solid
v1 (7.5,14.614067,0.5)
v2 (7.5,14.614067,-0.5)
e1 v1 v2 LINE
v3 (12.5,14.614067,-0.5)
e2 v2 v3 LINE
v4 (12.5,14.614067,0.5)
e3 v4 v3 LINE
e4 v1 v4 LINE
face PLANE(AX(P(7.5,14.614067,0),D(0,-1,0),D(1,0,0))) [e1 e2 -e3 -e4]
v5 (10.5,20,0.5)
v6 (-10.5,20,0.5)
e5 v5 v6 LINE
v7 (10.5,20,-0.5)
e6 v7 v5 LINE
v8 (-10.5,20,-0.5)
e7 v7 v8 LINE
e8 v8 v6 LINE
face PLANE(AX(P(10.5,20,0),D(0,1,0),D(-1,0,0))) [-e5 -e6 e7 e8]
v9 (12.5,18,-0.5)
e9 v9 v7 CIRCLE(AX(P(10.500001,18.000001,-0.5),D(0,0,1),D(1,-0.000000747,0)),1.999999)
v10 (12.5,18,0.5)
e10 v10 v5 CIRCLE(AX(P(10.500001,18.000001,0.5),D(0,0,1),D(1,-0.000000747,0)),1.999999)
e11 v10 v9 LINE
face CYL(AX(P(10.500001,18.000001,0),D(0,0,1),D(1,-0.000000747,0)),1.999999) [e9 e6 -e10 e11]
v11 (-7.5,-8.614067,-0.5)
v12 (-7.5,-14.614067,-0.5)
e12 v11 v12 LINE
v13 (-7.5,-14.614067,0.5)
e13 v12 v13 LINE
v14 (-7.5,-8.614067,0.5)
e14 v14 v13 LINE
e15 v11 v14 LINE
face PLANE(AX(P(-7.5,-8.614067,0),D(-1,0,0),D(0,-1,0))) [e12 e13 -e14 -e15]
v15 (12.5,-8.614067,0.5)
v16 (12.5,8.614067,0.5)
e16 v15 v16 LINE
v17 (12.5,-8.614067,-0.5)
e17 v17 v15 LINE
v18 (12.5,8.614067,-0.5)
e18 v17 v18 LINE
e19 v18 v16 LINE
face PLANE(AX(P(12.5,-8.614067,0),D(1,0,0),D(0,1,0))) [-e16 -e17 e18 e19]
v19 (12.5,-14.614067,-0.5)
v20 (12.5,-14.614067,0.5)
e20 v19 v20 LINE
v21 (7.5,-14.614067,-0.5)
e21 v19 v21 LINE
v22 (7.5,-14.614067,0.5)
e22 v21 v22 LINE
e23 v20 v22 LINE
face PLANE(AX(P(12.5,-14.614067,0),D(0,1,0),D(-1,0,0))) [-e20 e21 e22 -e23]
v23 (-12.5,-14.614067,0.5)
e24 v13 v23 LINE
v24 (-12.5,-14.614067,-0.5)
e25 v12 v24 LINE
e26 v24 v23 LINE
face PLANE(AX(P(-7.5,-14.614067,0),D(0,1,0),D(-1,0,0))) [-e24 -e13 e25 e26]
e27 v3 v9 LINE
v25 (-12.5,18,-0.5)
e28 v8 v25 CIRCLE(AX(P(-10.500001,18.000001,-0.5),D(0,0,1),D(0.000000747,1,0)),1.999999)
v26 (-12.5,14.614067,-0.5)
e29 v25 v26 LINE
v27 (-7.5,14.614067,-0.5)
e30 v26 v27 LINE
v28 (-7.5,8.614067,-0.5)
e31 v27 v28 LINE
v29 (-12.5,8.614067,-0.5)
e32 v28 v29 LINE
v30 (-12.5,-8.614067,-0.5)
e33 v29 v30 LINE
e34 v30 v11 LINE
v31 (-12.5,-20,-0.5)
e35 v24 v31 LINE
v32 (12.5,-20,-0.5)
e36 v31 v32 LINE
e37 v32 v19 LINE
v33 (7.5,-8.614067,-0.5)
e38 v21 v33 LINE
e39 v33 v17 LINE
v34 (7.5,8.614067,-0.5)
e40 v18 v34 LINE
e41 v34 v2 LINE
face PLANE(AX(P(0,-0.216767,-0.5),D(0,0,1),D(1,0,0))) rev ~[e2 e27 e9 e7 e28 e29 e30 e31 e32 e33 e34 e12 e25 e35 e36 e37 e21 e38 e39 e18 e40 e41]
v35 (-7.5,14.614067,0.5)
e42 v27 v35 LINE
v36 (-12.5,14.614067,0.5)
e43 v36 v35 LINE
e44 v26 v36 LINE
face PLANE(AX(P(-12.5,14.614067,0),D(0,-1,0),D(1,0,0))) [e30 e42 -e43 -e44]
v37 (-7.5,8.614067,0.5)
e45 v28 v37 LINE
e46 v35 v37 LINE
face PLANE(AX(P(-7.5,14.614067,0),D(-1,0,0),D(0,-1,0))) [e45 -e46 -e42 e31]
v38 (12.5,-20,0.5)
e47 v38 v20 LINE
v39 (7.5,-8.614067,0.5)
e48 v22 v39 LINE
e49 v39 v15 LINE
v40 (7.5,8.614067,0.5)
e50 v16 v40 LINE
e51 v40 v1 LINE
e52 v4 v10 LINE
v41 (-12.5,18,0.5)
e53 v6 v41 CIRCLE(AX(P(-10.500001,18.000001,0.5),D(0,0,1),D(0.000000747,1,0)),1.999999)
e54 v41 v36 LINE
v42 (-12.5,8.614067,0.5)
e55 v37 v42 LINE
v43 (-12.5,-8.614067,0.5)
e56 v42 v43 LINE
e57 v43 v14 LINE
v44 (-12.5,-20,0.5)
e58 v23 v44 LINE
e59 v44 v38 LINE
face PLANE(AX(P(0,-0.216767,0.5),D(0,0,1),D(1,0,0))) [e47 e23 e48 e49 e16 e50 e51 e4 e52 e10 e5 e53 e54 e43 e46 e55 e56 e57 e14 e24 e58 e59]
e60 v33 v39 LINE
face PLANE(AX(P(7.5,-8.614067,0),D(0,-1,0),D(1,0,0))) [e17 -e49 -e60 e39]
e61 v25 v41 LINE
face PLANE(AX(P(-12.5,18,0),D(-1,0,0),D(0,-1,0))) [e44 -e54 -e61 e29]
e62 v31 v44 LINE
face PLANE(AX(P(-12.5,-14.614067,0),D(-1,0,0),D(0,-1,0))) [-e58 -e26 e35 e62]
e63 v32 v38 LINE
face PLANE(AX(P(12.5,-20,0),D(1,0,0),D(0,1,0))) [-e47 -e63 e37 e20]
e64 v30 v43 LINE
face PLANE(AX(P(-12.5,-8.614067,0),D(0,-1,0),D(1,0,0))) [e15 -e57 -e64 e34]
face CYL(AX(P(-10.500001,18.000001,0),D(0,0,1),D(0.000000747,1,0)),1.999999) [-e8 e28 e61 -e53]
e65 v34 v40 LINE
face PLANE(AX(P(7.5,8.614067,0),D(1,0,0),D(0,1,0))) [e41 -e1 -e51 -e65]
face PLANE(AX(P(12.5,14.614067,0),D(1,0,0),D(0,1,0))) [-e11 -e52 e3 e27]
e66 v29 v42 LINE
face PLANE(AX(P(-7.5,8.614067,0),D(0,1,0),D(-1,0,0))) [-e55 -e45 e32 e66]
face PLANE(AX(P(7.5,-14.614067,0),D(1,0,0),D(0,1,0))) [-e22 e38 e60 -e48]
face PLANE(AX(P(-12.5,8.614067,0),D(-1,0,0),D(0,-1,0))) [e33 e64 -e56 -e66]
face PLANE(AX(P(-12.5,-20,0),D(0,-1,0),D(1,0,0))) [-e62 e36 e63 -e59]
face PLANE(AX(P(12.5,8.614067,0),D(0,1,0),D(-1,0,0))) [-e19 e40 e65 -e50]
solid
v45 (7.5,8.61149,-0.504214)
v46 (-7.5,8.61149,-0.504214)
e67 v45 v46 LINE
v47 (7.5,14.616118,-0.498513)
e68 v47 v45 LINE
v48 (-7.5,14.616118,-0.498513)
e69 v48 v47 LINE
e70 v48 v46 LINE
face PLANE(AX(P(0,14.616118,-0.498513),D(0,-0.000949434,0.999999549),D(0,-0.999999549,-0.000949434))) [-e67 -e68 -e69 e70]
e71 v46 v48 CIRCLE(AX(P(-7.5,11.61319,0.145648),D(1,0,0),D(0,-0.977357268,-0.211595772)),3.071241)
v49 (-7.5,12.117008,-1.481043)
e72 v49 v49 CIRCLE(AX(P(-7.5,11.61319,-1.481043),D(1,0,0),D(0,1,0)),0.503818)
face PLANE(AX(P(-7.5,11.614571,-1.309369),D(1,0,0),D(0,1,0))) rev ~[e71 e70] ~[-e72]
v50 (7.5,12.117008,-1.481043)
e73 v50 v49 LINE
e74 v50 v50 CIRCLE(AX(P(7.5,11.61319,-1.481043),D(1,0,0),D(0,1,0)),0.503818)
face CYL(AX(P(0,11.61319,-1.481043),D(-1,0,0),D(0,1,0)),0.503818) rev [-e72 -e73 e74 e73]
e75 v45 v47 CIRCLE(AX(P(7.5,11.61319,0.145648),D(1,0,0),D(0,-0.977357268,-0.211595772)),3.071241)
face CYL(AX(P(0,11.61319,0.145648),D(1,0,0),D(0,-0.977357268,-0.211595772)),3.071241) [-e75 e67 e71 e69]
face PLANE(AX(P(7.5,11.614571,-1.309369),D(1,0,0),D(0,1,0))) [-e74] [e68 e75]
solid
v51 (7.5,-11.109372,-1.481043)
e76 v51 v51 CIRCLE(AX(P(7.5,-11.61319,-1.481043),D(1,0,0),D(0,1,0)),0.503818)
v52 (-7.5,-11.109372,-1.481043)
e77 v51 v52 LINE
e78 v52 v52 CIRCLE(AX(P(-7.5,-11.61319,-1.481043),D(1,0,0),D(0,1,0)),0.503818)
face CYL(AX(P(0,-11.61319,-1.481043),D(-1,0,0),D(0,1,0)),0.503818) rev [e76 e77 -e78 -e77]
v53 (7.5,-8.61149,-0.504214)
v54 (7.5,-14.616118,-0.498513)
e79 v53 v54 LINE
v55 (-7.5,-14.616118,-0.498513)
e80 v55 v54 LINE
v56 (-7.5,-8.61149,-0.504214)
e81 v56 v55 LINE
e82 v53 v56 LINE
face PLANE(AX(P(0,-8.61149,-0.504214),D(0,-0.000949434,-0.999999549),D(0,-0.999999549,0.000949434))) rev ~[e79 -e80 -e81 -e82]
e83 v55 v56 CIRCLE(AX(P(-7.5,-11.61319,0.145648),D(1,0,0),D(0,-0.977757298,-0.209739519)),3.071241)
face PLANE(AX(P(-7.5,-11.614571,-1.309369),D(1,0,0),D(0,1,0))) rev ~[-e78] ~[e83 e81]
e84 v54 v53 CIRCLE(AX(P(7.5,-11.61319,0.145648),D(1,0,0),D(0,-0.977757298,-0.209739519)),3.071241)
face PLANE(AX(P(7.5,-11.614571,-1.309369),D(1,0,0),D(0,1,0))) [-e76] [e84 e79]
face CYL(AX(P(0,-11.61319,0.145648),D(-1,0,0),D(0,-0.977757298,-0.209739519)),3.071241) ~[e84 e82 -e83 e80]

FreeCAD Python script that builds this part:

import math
import FreeCAD as App
import Part
import Sketcher

doc = App.newDocument("Part")
body = doc.addObject("PartDesign::Body", "Body")

# Sketch on XY plane
sketch1 = doc.addObject("Sketcher::SketchObject", "Sketch")
body.addObject(sketch1)
sketch1.AttachmentSupport = (doc.XY_Plane, [""])
sketch1.MapMode = "FlatFace"
sketch1.addGeometry(Part.ArcOfCircle(Part.Circle(App.Vector(10.500001, 18.000001, 0), App.Vector(0, 0, 1), 1.999999), math.radians(-0.000043), math.radians(90.000043)), False)
sketch1.addGeometry(Part.LineSegment(App.Vector(10.5, 20, 0), App.Vector(-10.5, 20, 0)), False)
sketch1.addGeometry(Part.ArcOfCircle(Part.Circle(App.Vector(-10.500001, 18.000001, 0), App.Vector(0, 0, 1), 1.999999), math.radians(89.999957), math.radians(180.000043)), False)
sketch1.addGeometry(Part.LineSegment(App.Vector(-12.5, 18, 0), App.Vector(-12.5, 14.614067, 0)), False)
sketch1.addGeometry(Part.LineSegment(App.Vector(-12.5, 14.614067, 0), App.Vector(-7.5, 14.614067, 0)), False)
sketch1.addGeometry(Part.LineSegment(App.Vector(-7.5, 14.614067, 0), App.Vector(-7.5, 8.614067, 0)), False)
sketch1.addGeometry(Part.LineSegment(App.Vector(-7.5, 8.614067, 0), App.Vector(-12.5, 8.614067, 0)), False)
sketch1.addGeometry(Part.LineSegment(App.Vector(-12.5, 8.614067, 0), App.Vector(-12.5, -8.614067, 0)), False)
sketch1.addGeometry(Part.LineSegment(App.Vector(-12.5, -8.614067, 0), App.Vector(-7.5, -8.614067, 0)), False)
sketch1.addGeometry(Part.LineSegment(App.Vector(-7.5, -8.614067, 0), App.Vector(-7.5, -14.614067, 0)), False)
sketch1.addGeometry(Part.LineSegment(App.Vector(-7.5, -14.614067, 0), App.Vector(-12.5, -14.614067, 0)), False)
sketch1.addGeometry(Part.LineSegment(App.Vector(-12.5, -14.614067, 0), App.Vector(-12.5, -20, 0)), False)
sketch1.addGeometry(Part.LineSegment(App.Vector(-12.5, -20, 0), App.Vector(12.5, -20, 0)), False)
sketch1.addGeometry(Part.LineSegment(App.Vector(12.5, -20, 0), App.Vector(12.5, -14.614067, 0)), False)
sketch1.addGeometry(Part.LineSegment(App.Vector(12.5, -14.614067, 0), App.Vector(7.5, -14.614067, 0)), False)
sketch1.addGeometry(Part.LineSegment(App.Vector(7.5, -14.614067, 0), App.Vector(7.5, -8.614067, 0)), False)
sketch1.addGeometry(Part.LineSegment(App.Vector(7.5, -8.614067, 0), App.Vector(12.5, -8.614067, 0)), False)
sketch1.addGeometry(Part.LineSegment(App.Vector(12.5, -8.614067, 0), App.Vector(12.5, 8.614067, 0)), False)
sketch1.addGeometry(Part.LineSegment(App.Vector(12.5, 8.614067, 0), App.Vector(7.5, 8.614067, 0)), False)
sketch1.addGeometry(Part.LineSegment(App.Vector(7.5, 8.614067, 0), App.Vector(7.5, 14.614067, 0)), False)
sketch1.addGeometry(Part.LineSegment(App.Vector(7.5, 14.614067, 0), App.Vector(12.5, 14.614067, 0)), False)
sketch1.addGeometry(Part.LineSegment(App.Vector(12.5, 14.614067, 0), App.Vector(12.5, 18, 0)), False)
sketch1.addConstraint(Sketcher.Constraint("Tangent", 0, 2, 1, 1))
sketch1.addConstraint(Sketcher.Constraint("Tangent", 1, 2, 2, 1))
sketch1.addConstraint(Sketcher.Constraint("Tangent", 2, 2, 3, 1))
sketch1.addConstraint(Sketcher.Constraint("Coincident", 3, 2, 4, 1))
sketch1.addConstraint(Sketcher.Constraint("Coincident", 4, 2, 5, 1))
sketch1.addConstraint(Sketcher.Constraint("Coincident", 5, 2, 6, 1))
sketch1.addConstraint(Sketcher.Constraint("Coincident", 6, 2, 7, 1))
sketch1.addConstraint(Sketcher.Constraint("Coincident", 7, 2, 8, 1))
sketch1.addConstraint(Sketcher.Constraint("Coincident", 8, 2, 9, 1))
sketch1.addConstraint(Sketcher.Constraint("Coincident", 9, 2, 10, 1))
sketch1.addConstraint(Sketcher.Constraint("Coincident", 10, 2, 11, 1))
sketch1.addConstraint(Sketcher.Constraint("Coincident", 11, 2, 12, 1))
sketch1.addConstraint(Sketcher.Constraint("Coincident", 12, 2, 13, 1))
sketch1.addConstraint(Sketcher.Constraint("Coincident", 13, 2, 14, 1))
sketch1.addConstraint(Sketcher.Constraint("Coincident", 14, 2, 15, 1))
sketch1.addConstraint(Sketcher.Constraint("Coincident", 15, 2, 16, 1))
sketch1.addConstraint(Sketcher.Constraint("Coincident", 16, 2, 17, 1))
sketch1.addConstraint(Sketcher.Constraint("Coincident", 17, 2, 18, 1))
sketch1.addConstraint(Sketcher.Constraint("Coincident", 18, 2, 19, 1))
sketch1.addConstraint(Sketcher.Constraint("Coincident", 19, 2, 20, 1))
sketch1.addConstraint(Sketcher.Constraint("Coincident", 20, 2, 21, 1))
sketch1.addConstraint(Sketcher.Constraint("Tangent", 21, 2, 0, 1))
sketch1.addConstraint(Sketcher.Constraint("Horizontal", 1))
sketch1.addConstraint(Sketcher.Constraint("Vertical", 3))
sketch1.addConstraint(Sketcher.Constraint("Horizontal", 4))
sketch1.addConstraint(Sketcher.Constraint("Vertical", 5))
sketch1.addConstraint(Sketcher.Constraint("Horizontal", 6))
sketch1.addConstraint(Sketcher.Constraint("Vertical", 7))
sketch1.addConstraint(Sketcher.Constraint("Horizontal", 8))
sketch1.addConstraint(Sketcher.Constraint("Vertical", 9))
sketch1.addConstraint(Sketcher.Constraint("Horizontal", 10))
sketch1.addConstraint(Sketcher.Constraint("Vertical", 11))
sketch1.addConstraint(Sketcher.Constraint("Horizontal", 12))
sketch1.addConstraint(Sketcher.Constraint("Vertical", 13))
sketch1.addConstraint(Sketcher.Constraint("Horizontal", 14))
sketch1.addConstraint(Sketcher.Constraint("Vertical", 15))
sketch1.addConstraint(Sketcher.Constraint("Horizontal", 16))
sketch1.addConstraint(Sketcher.Constraint("Vertical", 17))
sketch1.addConstraint(Sketcher.Constraint("Horizontal", 18))
sketch1.addConstraint(Sketcher.Constraint("Vertical", 19))
sketch1.addConstraint(Sketcher.Constraint("Horizontal", 20))
sketch1.addConstraint(Sketcher.Constraint("Vertical", 21))
sketch1.addConstraint(Sketcher.Constraint("Equal", 0, 2))
sketch1.addConstraint(Sketcher.Constraint("Symmetric", 3, 2, 13, 2, -1, 1))
sketch1.addConstraint(Sketcher.Constraint("Symmetric", 5, 2, 15, 2, -1, 1))
sketch1.addConstraint(Sketcher.Constraint("Symmetric", 7, 2, 17, 2, -1, 1))
sketch1.addConstraint(Sketcher.Constraint("Symmetric", 9, 2, 19, 2, -1, 1))
sketch1.addConstraint(Sketcher.Constraint("Symmetric", 10, 2, 13, 2, -2))
sketch1.addConstraint(Sketcher.Constraint("Symmetric", 8, 2, 15, 2, -2))
sketch1.addConstraint(Sketcher.Constraint("Vertical", 3, 2, 6, 2))
sketch1.addConstraint(Sketcher.Constraint("Vertical", 17, 2, 20, 2))
sketch1.addConstraint(Sketcher.Constraint("Radius", 0, 1.999999))
sketch1.addConstraint(Sketcher.Constraint("DistanceX", 1, 2, 1, 1, 21.0))
sketch1.addConstraint(Sketcher.Constraint("DistanceX", 4, 1, 4, 2, 5.0))
sketch1.addConstraint(Sketcher.Constraint("DistanceY", 5, 2, 5, 1, 6.0))
sketch1.addConstraint(Sketcher.Constraint("DistanceY", -1, 1, 0, 3, 18.000001))
sketch1.addConstraint(Sketcher.Constraint("DistanceY", 11, 2, -1, 1, 20.0))
sketch1.addConstraint(Sketcher.Constraint("DistanceY", 3, 2, 3, 1, 3.385933))
pad1 = doc.addObject("PartDesign::Pad", "Pad")
body.addObject(pad1)
pad1.Profile = sketch1
pad1.Length = 1
pad1.Midplane = True
body2 = doc.addObject("PartDesign::Body", "Body001")
body2.AllowCompound = True

# Sketch on YZ plane
sketch2 = doc.addObject("Sketcher::SketchObject", "Sketch001")
body2.addObject(sketch2)
sketch2.AttachmentSupport = (doc.getObject("YZ_Plane001"), [""])
sketch2.MapMode = "FlatFace"
sketch2.addGeometry(Part.LineSegment(App.Vector(-8.61149, -0.504214, 0), App.Vector(-14.616118, -0.498513, 0)), False)
sketch2.addGeometry(Part.ArcOfCircle(Part.Circle(App.Vector(-11.61319, 0.145648, 0), App.Vector(0, 0, 1), 3.071241), math.radians(-167.892912), math.radians(-12.215885)), False)
sketch2.addGeometry(Part.Circle(App.Vector(-11.61319, -1.481043, 0), App.Vector(0, 0, 1), 0.503818), False)
sketch2.addGeometry(Part.ArcOfCircle(Part.Circle(App.Vector(11.61319, 0.145648, 0), App.Vector(0, 0, 1), 3.071241), math.radians(-167.784115), math.radians(-12.107088)), False)
sketch2.addGeometry(Part.LineSegment(App.Vector(14.616118, -0.498513, 0), App.Vector(8.61149, -0.504214, 0)), False)
sketch2.addGeometry(Part.Circle(App.Vector(11.61319, -1.481043, 0), App.Vector(0, 0, 1), 0.503818), False)
sketch2.addConstraint(Sketcher.Constraint("Coincident", 0, 1, 1, 2))
sketch2.addConstraint(Sketcher.Constraint("Coincident", 1, 1, 0, 2))
sketch2.addConstraint(Sketcher.Constraint("Coincident", 3, 1, 4, 2))
sketch2.addConstraint(Sketcher.Constraint("Coincident", 4, 1, 3, 2))
sketch2.addConstraint(Sketcher.Constraint("Equal", 1, 3))
sketch2.addConstraint(Sketcher.Constraint("Equal", 2, 5))
sketch2.addConstraint(Sketcher.Constraint("Symmetric", 1, 3, 3, 3, -2))
sketch2.addConstraint(Sketcher.Constraint("Symmetric", 2, 3, 5, 3, -2))
sketch2.addConstraint(Sketcher.Constraint("Horizontal", 0, 1, 3, 1))
sketch2.addConstraint(Sketcher.Constraint("Horizontal", 1, 1, 4, 1))
sketch2.addConstraint(Sketcher.Constraint("Vertical", 1, 3, 2, 3))
sketch2.addConstraint(Sketcher.Constraint("Radius", 1, 3.071241))
sketch2.addConstraint(Sketcher.Constraint("Diameter", 2, 1.007636))
sketch2.addConstraint(Sketcher.Constraint("DistanceX", 1, 3, 0, 1, 3.0017))
sketch2.addConstraint(Sketcher.Constraint("DistanceY", 0, 1, 1, 1, 0.005701))
sketch2.addConstraint(Sketcher.Constraint("DistanceX", 1, 3, -1, 1, 11.61319))
sketch2.addConstraint(Sketcher.Constraint("DistanceY", 2, 3, 1, 3, 1.626691))
sketch2.addConstraint(Sketcher.Constraint("DistanceY", -1, 1, 1, 3, 0.145648))
pad2 = doc.addObject("PartDesign::Pad", "Pad001")
body2.addObject(pad2)
pad2.Profile = sketch2
pad2.Length = 15
pad2.Midplane = True

doc.recompute()
